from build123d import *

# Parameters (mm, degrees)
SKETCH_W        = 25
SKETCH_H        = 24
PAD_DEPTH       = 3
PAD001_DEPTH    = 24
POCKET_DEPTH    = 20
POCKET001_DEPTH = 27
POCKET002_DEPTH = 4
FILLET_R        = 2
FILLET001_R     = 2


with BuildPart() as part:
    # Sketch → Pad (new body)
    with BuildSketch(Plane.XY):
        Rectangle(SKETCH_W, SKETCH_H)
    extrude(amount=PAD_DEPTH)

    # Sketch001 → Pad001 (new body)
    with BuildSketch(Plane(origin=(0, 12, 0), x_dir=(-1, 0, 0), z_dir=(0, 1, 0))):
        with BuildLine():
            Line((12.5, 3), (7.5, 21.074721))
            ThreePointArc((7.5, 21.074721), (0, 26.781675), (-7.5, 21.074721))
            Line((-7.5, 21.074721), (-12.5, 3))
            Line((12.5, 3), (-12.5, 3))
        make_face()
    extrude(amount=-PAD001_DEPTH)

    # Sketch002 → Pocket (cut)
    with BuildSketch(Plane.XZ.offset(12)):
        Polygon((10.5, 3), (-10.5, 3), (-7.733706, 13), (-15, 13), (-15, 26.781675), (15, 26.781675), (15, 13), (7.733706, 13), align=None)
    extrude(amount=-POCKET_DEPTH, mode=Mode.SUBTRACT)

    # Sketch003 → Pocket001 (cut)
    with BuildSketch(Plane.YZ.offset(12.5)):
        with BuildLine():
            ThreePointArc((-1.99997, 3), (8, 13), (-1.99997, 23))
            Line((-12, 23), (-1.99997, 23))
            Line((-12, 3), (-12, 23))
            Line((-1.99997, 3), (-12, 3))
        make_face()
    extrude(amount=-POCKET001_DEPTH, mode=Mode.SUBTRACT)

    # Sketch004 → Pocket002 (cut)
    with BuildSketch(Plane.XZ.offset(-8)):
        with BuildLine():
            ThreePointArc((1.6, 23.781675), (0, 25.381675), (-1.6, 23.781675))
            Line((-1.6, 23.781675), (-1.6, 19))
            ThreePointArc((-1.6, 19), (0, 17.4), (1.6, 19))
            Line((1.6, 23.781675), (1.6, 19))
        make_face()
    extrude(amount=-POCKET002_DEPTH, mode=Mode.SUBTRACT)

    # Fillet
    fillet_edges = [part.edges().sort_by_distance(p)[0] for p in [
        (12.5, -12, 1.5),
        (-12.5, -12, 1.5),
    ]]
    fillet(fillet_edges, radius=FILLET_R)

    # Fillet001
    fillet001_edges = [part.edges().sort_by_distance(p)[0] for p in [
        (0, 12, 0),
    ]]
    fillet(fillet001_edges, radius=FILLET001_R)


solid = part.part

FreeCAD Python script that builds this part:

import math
import FreeCAD as App
import Part
import Sketcher
Q = App.Units.Quantity


def edges_at(feature, points):
    """Names of the edges that pass closest to the given points."""
    edges = feature.Shape.Edges
    near = lambda p: min(range(len(edges)), key=lambda i: edges[i].distToShape(Part.Vertex(*p))[0])
    return sorted({f"Edge{near(p) + 1}" for p in points})


def add_polygon(sketch, points):
    """Adds a closed chain of lines whose ends are joined by coincident constraints."""
    first, n = sketch.GeometryCount, len(points)
    for a, b in zip(points, points[1:] + points[:1]):
        sketch.addGeometry(Part.LineSegment(App.Vector(*a, 0), App.Vector(*b, 0)), False)
    for i in range(n):
        sketch.addConstraint(Sketcher.Constraint("Coincident", first + i, 2, first + (i + 1) % n, 1))

doc = App.newDocument("Part")
body = doc.addObject("PartDesign::Body", "Body")

sketch1 = doc.addObject("Sketcher::SketchObject", "Sketch")
body.addObject(sketch1)
sketch1.AttachmentSupport = (doc.XY_Plane, [""])
sketch1.MapMode = "FlatFace"
add_polygon(sketch1, [(-12.5, 12), (-12.5, -12), (12.5, -12), (12.5, 12)])
sketch1.addConstraint([
    Sketcher.Constraint("Vertical", 0),
    Sketcher.Constraint("Horizontal", 1),
    Sketcher.Constraint("Vertical", 2),
    Sketcher.Constraint("Horizontal", 3),
    Sketcher.Constraint("Symmetric", 0, 2, 2, 2, -1, 1),
    Sketcher.Constraint("DistanceX", 1, 1, 1, 2, Q("25 mm")),
    Sketcher.Constraint("DistanceY", 0, 2, 0, 1, Q("24 mm")),
])
pad1 = doc.addObject("PartDesign::Pad", "Pad")
body.addObject(pad1)
pad1.Profile = sketch1
pad1.Length = 3

sketch2 = doc.addObject("Sketcher::SketchObject", "Sketch001")
body.addObject(sketch2)
sketch2.AttachmentSupport = (doc.XZ_Plane, [""])
sketch2.MapMode = "FlatFace"
sketch2.AttachmentOffset = App.Placement(App.Vector(0, 0, -12), App.Rotation())
sketch2.addGeometry([
    Part.LineSegment(App.Vector(-12.5, 3, 0), App.Vector(-7.5, 21.074721, 0)),
    Part.ArcOfCircle(Part.Circle(App.Vector(0, 19, 0), App.Vector(0, 0, 1), 7.781675), math.radians(15.463013), math.radians(164.536987)),
    Part.LineSegment(App.Vector(7.5, 21.074721, 0), App.Vector(12.5, 3, 0)),
    Part.LineSegment(App.Vector(12.5, 3, 0), App.Vector(-12.5, 3, 0)),
], False)
sketch2.addConstraint([
    Sketcher.Constraint("Tangent", 0, 2, 1, 2),
    Sketcher.Constraint("Tangent", 1, 1, 2, 1),
    Sketcher.Constraint("Coincident", 2, 2, 3, 1),
    Sketcher.Constraint("Coincident", 3, 2, 0, 1),
    Sketcher.Constraint("Horizontal", 3),
    Sketcher.Constraint("Symmetric", 0, 2, 1, 1, -2),
    Sketcher.Constraint("DistanceX", 3, 2, 3, 1, Q("25 mm")),
    Sketcher.Constraint("DistanceY", -1, 1, 1, 3, Q("19 mm")),
    Sketcher.Constraint("DistanceY", -1, 1, 2, 2, Q("3 mm")),
    Sketcher.Constraint("DistanceX", 0, 2, 1, 1, Q("15 mm")),
])
pad2 = doc.addObject("PartDesign::Pad", "Pad001")
body.addObject(pad2)
pad2.Profile = sketch2
pad2.Length = 24

sketch3 = doc.addObject("Sketcher::SketchObject", "Sketch002")
body.addObject(sketch3)
sketch3.AttachmentSupport = (doc.XZ_Plane, [""])
sketch3.MapMode = "FlatFace"
sketch3.AttachmentOffset = App.Placement(App.Vector(0, 0, 12), App.Rotation())
add_polygon(sketch3, [(-10.5, 3), (10.5, 3), (7.733706, 13), (15, 13), (15, 26.781675), (-15, 26.781675), (-15, 13), (-7.733706, 13)])
sketch3.addConstraint([
    Sketcher.Constraint("Horizontal", 0),
    Sketcher.Constraint("Horizontal", 2),
    Sketcher.Constraint("Vertical", 3),
    Sketcher.Constraint("Horizontal", 4),
    Sketcher.Constraint("Vertical", 5),
    Sketcher.Constraint("Horizontal", 6),
    Sketcher.Constraint("Symmetric", 2, 2, 5, 2, -2),
    Sketcher.Constraint("Equal", 2, 6),
    Sketcher.Constraint("Equal", 1, 7),
    Sketcher.Constraint("DistanceX", 0, 1, 0, 2, Q("21 mm")),
    Sketcher.Constraint("DistanceX", 4, 2, 4, 1, Q("30 mm")),
    Sketcher.Constraint("DistanceY", -1, 1, 0, 2, Q("3 mm")),
    Sketcher.Constraint("DistanceY", -1, 1, 1, 2, Q("13 mm")),
    Sketcher.Constraint("DistanceX", 2, 1, 2, 2, Q("7.266294 mm")),
    Sketcher.Constraint("DistanceY", 3, 1, 3, 2, Q("13.781675 mm")),
])
pocket1 = doc.addObject("PartDesign::Pocket", "Pocket")
body.addObject(pocket1)
pocket1.Profile = sketch3
pocket1.Length = 20

sketch4 = doc.addObject("Sketcher::SketchObject", "Sketch003")
body.addObject(sketch4)
sketch4.AttachmentSupport = (doc.YZ_Plane, [""])
sketch4.MapMode = "FlatFace"
sketch4.AttachmentOffset = App.Placement(App.Vector(0, 0, 12.5), App.Rotation())
sketch4.addGeometry([
    Part.ArcOfCircle(Part.Circle(App.Vector(-2, 13, 0), App.Vector(0, 0, 1), 10), math.radians(-89.999828), math.radians(89.999828)),
    Part.LineSegment(App.Vector(-1.99997, 23, 0), App.Vector(-12, 23, 0)),
    Part.LineSegment(App.Vector(-12, 23, 0), App.Vector(-12, 3, 0)),
    Part.LineSegment(App.Vector(-12, 3, 0), App.Vector(-1.99997, 3, 0)),
], False)
sketch4.addConstraint([
    Sketcher.Constraint("Coincident", 0, 2, 1, 1),
    Sketcher.Constraint("Coincident", 1, 2, 2, 1),
    Sketcher.Constraint("Coincident", 2, 2, 3, 1),
    Sketcher.Constraint("Coincident", 3, 2, 0, 1),
    Sketcher.Constraint("Horizontal", 1),
    Sketcher.Constraint("Vertical", 2),
    Sketcher.Constraint("Horizontal", 3),
    Sketcher.Constraint("Vertical", 0, 2, 3, 2),
    Sketcher.Constraint("Radius", 0, Q("10 mm")),
    Sketcher.Constraint("DistanceX", 0, 3, -1, 1, Q("2 mm")),
    Sketcher.Constraint("DistanceY", -1, 1, 0, 3, Q("13 mm")),
    Sketcher.Constraint("DistanceX", 1, 2, -1, 1, Q("12 mm")),
    Sketcher.Constraint("DistanceX", 1, 2, 1, 1, Q("10.00003 mm")),
])
pocket2 = doc.addObject("PartDesign::Pocket", "Pocket001")
body.addObject(pocket2)
pocket2.Profile = sketch4
pocket2.Length = 27

sketch5 = doc.addObject("Sketcher::SketchObject", "Sketch004")
body.addObject(sketch5)
sketch5.AttachmentSupport = (doc.XZ_Plane, [""])
sketch5.MapMode = "FlatFace"
sketch5.AttachmentOffset = App.Placement(App.Vector(0, 0, -8), App.Rotation())
sketch5.addGeometry([
    Part.ArcOfCircle(Part.Circle(App.Vector(0, 23.781675, 0), App.Vector(0, 0, 1), 1.6), math.radians(0), math.radians(180)),
    Part.LineSegment(App.Vector(-1.6, 23.781675, 0), App.Vector(-1.6, 19, 0)),
    Part.ArcOfCircle(Part.Circle(App.Vector(0, 19, 0), App.Vector(0, 0, 1), 1.6), math.radians(180), math.radians(360)),
    Part.LineSegment(App.Vector(1.6, 19, 0), App.Vector(1.6, 23.781675, 0)),
], False)
sketch5.addConstraint([
    Sketcher.Constraint("Tangent", 0, 2, 1, 1),
    Sketcher.Constraint("Tangent", 1, 2, 2, 1),
    Sketcher.Constraint("Tangent", 2, 2, 3, 1),
    Sketcher.Constraint("Tangent", 3, 2, 0, 1),
    Sketcher.Constraint("Vertical", 1),
    Sketcher.Constraint("Vertical", 3),
    Sketcher.Constraint("PointOnObject", 0, 3, -2),
    Sketcher.Constraint("Radius", 0, Q("1.6 mm")),
    Sketcher.Constraint("DistanceY", -1, 1, 2, 3, Q("19 mm")),
    Sketcher.Constraint("DistanceY", 1, 2, 1, 1, Q("4.781675 mm")),
])
pocket3 = doc.addObject("PartDesign::Pocket", "Pocket002")
body.addObject(pocket3)
pocket3.Profile = sketch5
pocket3.Length = 4
doc.recompute()

fillet = doc.addObject("PartDesign::Fillet", "Fillet")
body.addObject(fillet)
fillet.Base = (pocket3, edges_at(pocket3, [(12.5, -12, 1.5), (-12.5, -12, 1.5)]))
fillet.Radius = 2
doc.recompute()

fillet2 = doc.addObject("PartDesign::Fillet", "Fillet001")
body.addObject(fillet2)
fillet2.Base = (fillet, edges_at(fillet, [(0, 12, 0)]))
fillet2.Radius = 2

doc.recompute()
